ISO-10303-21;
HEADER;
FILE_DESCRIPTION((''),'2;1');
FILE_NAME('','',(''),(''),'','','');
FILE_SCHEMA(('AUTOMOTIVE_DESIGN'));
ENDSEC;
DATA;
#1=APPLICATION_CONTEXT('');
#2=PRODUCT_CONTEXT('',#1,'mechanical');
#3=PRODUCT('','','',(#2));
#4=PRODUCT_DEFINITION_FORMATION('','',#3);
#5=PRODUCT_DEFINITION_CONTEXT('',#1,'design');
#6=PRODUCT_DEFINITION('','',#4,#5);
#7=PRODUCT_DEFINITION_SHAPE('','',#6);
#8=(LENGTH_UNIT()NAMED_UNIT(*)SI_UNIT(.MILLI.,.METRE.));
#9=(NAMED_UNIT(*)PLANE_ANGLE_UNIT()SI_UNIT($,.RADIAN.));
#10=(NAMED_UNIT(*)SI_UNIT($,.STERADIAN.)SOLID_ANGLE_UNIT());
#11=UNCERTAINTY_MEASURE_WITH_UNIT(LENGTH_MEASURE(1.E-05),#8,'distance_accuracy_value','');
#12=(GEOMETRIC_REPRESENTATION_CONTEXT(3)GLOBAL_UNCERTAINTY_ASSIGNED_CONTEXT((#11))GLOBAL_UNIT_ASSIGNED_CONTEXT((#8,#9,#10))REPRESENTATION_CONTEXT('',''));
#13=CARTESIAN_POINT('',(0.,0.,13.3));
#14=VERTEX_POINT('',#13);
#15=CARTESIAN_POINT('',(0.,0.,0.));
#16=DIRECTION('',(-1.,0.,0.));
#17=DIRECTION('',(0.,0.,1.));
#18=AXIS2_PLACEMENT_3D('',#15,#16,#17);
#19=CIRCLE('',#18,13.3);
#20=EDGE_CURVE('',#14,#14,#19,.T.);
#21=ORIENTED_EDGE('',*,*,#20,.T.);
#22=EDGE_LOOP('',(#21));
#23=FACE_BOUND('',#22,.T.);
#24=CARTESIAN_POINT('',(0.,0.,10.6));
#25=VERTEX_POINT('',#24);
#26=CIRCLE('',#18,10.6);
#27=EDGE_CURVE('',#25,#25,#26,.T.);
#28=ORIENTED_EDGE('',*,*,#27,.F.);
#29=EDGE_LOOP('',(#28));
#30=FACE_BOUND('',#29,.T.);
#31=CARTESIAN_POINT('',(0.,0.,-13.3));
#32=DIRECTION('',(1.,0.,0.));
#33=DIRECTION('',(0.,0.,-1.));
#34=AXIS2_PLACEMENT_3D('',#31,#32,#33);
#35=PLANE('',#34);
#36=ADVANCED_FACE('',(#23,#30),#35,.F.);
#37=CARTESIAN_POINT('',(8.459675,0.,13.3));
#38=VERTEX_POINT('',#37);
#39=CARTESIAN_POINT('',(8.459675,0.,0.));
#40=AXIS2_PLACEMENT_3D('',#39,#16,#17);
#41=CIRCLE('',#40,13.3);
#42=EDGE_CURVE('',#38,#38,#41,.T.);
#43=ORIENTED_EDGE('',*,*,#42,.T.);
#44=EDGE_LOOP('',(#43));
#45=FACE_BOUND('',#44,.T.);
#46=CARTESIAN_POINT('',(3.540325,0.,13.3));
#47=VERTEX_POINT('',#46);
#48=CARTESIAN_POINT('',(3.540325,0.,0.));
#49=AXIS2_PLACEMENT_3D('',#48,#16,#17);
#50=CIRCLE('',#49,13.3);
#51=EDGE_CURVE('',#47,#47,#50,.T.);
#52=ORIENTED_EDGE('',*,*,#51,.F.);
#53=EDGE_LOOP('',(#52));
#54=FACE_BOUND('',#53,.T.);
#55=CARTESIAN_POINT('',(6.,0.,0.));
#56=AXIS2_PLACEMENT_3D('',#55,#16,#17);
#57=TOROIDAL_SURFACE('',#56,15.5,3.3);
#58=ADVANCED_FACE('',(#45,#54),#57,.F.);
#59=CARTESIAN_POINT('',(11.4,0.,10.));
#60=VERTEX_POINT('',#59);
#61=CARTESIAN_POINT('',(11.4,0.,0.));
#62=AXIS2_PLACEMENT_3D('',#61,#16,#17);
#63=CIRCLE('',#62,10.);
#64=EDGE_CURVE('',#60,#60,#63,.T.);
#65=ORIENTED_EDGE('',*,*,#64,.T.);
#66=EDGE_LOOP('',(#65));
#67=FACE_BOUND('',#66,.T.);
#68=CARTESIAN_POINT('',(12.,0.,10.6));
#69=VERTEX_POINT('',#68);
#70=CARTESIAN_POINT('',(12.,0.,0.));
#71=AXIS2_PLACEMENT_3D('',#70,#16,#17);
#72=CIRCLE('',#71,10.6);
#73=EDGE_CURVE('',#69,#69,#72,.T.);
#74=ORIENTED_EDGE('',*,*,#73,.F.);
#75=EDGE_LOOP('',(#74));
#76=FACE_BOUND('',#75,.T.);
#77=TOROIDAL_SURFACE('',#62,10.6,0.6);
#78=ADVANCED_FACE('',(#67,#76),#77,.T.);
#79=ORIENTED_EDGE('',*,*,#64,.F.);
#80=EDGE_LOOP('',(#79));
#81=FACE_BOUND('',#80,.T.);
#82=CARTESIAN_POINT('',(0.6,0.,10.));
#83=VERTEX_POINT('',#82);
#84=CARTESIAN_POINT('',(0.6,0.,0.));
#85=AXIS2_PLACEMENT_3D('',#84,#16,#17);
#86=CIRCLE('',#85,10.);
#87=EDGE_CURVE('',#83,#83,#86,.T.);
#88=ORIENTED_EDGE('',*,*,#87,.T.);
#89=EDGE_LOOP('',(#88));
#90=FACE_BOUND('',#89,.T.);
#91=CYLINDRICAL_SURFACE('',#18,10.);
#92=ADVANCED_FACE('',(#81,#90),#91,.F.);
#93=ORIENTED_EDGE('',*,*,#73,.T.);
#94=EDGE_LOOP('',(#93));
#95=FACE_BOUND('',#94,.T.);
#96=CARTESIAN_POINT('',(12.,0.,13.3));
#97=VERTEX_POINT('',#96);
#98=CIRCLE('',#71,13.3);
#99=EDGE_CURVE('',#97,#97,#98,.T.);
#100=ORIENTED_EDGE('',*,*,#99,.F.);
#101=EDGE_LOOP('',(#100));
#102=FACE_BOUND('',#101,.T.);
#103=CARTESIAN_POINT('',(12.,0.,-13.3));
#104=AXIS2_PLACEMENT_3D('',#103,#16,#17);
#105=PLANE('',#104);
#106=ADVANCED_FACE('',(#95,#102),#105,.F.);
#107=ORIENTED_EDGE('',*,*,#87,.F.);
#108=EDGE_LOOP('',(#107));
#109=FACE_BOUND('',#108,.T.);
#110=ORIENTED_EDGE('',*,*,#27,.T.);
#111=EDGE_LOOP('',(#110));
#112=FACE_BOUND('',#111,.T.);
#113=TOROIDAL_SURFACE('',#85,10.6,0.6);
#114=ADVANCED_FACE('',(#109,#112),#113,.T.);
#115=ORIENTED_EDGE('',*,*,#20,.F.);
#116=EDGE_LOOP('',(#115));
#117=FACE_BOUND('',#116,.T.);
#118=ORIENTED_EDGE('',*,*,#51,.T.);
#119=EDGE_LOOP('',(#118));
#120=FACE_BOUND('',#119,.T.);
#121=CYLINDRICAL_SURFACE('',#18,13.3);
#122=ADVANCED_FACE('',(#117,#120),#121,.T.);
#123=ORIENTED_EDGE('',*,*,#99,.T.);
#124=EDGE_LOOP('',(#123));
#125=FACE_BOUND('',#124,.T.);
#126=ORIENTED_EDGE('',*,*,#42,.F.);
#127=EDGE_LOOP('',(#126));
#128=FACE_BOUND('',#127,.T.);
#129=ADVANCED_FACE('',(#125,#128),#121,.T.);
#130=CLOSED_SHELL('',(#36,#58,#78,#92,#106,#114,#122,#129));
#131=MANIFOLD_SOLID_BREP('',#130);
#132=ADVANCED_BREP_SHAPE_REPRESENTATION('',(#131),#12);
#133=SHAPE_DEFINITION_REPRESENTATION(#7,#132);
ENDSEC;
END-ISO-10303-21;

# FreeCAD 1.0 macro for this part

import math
import FreeCAD as App
import Part
import Sketcher

V = App.Vector
Q = App.Units.Quantity

doc = App.newDocument("Part")
body = doc.addObject("PartDesign::Body", "Body")

sketch1 = doc.addObject("Sketcher::SketchObject", "Sketch")
body.addObject(sketch1)
sketch1.AttachmentSupport = (doc.XZ_Plane, [""])
sketch1.MapMode = "FlatFace"
sketch1.addGeometry(Part.LineSegment(V(0, -13.3, 0), V(0, -10.6, 0)), False)
sketch1.addGeometry(Part.ArcOfCircle(Part.Circle(V(0.6, -10.6, 0), V(0, 0, 1), 0.6), math.radians(90), math.radians(180)), False)
sketch1.addGeometry(Part.LineSegment(V(0.6, -10, 0), V(11.4, -10, 0)), False)
sketch1.addGeometry(Part.ArcOfCircle(Part.Circle(V(11.4, -10.6, 0), V(0, 0, 1), 0.6), math.radians(0), math.radians(90)), False)
sketch1.addGeometry(Part.LineSegment(V(12, -10.6, 0), V(12, -13.3, 0)), False)
sketch1.addGeometry(Part.LineSegment(V(12, -13.3, 0), V(8.5, -13.3, 0)), False)
sketch1.addGeometry(Part.ArcOfCircle(Part.Circle(V(6, -15.5, 0), V(0, 0, 1), 3.3), math.radians(42), math.radians(138)), False)
sketch1.addGeometry(Part.LineSegment(V(3.5, -13.3, 0), V(0, -13.3, 0)), False)
sketch1.addConstraint(Sketcher.Constraint("Tangent", 0, 2, 1, 2))
sketch1.addConstraint(Sketcher.Constraint("Tangent", 1, 1, 2, 1))
sketch1.addConstraint(Sketcher.Constraint("Tangent", 2, 2, 3, 2))
sketch1.addConstraint(Sketcher.Constraint("Tangent", 3, 1, 4, 1))
sketch1.addConstraint(Sketcher.Constraint("Coincident", 4, 2, 5, 1))
sketch1.addConstraint(Sketcher.Constraint("Coincident", 5, 2, 6, 1))
sketch1.addConstraint(Sketcher.Constraint("Coincident", 6, 2, 7, 1))
sketch1.addConstraint(Sketcher.Constraint("Coincident", 7, 2, 0, 1))
sketch1.addConstraint(Sketcher.Constraint("Vertical", 0))
sketch1.addConstraint(Sketcher.Constraint("Horizontal", 2))
sketch1.addConstraint(Sketcher.Constraint("Vertical", 4))
sketch1.addConstraint(Sketcher.Constraint("Horizontal", 5))
sketch1.addConstraint(Sketcher.Constraint("Horizontal", 7))
sketch1.addConstraint(Sketcher.Constraint("Equal", 1, 3))
sketch1.addConstraint(Sketcher.Constraint("PointOnObject", 0, 2, -2))
sketch1.addConstraint(Sketcher.Constraint("Horizontal", 5, 2, 6, 2))
sketch1.addConstraint(Sketcher.Constraint("Equal", 5, 7))
sketch1.addConstraint(Sketcher.Constraint("Radius", 1, Q("0.6 mm")))
sketch1.addConstraint(Sketcher.Constraint("Radius", 6, Q("3.3 mm")))
sketch1.addConstraint(Sketcher.Constraint("DistanceX", 2, 1, 2, 2, Q("10.8 mm")))
sketch1.addConstraint(Sketcher.Constraint("DistanceY", 0, 1, 0, 2, Q("2.7 mm")))
sketch1.addConstraint(Sketcher.Constraint("DistanceY", 1, 1, -1, 1, Q("10 mm")))
sketch1.addConstraint(Sketcher.Constraint("DistanceY", 6, 3, -1, 1, Q("15.5 mm")))
revolution = doc.addObject("PartDesign::Revolution", "Revolution")
body.addObject(revolution)
revolution.Profile = sketch1
revolution.ReferenceAxis = (sketch1, ["H_Axis"])
revolution.Angle = 360

doc.recompute()
